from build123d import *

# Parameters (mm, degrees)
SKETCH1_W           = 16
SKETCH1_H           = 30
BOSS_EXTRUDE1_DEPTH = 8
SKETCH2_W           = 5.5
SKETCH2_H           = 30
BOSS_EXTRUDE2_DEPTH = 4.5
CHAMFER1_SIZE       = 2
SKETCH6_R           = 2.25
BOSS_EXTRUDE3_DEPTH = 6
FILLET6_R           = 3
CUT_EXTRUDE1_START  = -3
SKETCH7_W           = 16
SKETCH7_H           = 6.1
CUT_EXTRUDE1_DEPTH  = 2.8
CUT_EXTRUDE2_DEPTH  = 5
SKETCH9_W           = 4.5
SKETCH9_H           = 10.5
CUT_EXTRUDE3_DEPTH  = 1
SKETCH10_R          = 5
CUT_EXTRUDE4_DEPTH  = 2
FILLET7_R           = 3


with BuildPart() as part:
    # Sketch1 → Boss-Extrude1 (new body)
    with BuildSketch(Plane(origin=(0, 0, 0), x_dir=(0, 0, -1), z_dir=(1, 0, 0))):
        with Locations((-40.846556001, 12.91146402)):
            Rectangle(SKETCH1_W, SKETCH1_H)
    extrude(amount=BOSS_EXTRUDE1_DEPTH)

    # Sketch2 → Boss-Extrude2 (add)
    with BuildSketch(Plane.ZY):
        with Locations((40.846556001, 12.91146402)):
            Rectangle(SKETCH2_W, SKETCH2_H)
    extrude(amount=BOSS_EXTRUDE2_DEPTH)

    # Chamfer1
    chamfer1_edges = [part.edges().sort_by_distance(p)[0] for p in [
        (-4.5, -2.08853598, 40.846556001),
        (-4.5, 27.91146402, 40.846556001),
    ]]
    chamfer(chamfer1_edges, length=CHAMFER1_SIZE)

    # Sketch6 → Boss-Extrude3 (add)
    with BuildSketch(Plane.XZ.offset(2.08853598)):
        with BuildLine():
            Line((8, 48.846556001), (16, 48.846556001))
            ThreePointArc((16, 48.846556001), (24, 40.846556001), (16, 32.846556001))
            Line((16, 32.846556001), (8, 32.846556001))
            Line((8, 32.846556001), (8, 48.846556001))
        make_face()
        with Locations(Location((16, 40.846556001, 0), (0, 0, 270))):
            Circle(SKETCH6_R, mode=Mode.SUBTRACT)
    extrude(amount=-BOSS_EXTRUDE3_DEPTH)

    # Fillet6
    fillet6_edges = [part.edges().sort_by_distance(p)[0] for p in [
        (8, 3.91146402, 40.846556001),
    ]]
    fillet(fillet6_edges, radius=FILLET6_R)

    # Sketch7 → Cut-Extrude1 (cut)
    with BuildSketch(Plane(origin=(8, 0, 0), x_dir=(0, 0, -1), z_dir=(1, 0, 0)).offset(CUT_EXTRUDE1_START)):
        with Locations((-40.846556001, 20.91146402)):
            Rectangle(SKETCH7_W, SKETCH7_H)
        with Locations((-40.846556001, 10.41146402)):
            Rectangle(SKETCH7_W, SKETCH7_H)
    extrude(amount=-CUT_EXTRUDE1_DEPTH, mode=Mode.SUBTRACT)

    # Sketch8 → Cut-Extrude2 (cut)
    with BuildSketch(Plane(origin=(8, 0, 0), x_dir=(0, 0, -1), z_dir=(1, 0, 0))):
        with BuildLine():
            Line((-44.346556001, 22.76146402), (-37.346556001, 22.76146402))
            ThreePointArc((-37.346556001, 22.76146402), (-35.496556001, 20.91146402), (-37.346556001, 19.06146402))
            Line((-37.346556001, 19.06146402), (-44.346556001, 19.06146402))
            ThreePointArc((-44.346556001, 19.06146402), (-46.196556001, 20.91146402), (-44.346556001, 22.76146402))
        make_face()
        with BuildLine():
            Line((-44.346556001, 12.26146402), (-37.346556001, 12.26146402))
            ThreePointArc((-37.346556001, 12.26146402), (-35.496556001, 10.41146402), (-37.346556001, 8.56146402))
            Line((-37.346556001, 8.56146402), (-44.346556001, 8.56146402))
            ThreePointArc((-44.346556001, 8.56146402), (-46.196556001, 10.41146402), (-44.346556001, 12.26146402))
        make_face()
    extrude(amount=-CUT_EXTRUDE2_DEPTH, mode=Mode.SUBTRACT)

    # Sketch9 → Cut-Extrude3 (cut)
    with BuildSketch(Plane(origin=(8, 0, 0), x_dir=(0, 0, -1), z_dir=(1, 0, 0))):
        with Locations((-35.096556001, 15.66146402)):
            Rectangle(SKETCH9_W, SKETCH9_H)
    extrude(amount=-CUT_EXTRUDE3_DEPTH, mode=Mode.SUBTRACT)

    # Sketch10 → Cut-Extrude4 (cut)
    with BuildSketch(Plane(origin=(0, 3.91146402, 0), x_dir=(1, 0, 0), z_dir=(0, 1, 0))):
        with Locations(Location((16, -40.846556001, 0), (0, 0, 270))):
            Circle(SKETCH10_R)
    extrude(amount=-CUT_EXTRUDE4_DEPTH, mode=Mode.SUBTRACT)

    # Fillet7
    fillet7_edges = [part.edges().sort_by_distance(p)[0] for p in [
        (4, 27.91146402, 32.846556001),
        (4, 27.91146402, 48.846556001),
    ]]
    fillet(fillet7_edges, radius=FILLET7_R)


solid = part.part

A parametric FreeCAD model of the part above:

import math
import FreeCAD as App
import Part
import Sketcher


def edges_at(feature, points):
    """Names of the edges that pass closest to the given points."""
    edges = feature.Shape.Edges
    near = lambda p: min(range(len(edges)), key=lambda i: edges[i].distToShape(Part.Vertex(*p))[0])
    return sorted({f"Edge{near(p) + 1}" for p in points})

doc = App.newDocument("Part")
params = doc.addObject("Spreadsheet::Sheet", "Params")
for row, (alias, value) in enumerate([
    ("sketch1_width", "30 mm"),
    ("sketch1_height", "16 mm"),
    ("pad1_length", "8 mm"),
    ("sketch2_width", "30 mm"),
    ("sketch2_height", "5.5 mm"),
    ("pad2_length", "4.5 mm"),
    ("chamfer_size", "2 mm"),
    ("sketch3_radius", "8 mm"),
    ("sketch3_diameter", "4.5 mm"),
    ("sketch3_width", "8 mm"),
    ("pad3_length", "6 mm"),
    ("fillet_radius", "3 mm"),
    ("sketch4_height", "16 mm"),
    ("sketch4_width", "6.1 mm"),
    ("pocket1_length", "2.8 mm"),
    ("sketch5_height", "7 mm"),
    ("sketch5_radius", "1.85 mm"),
    ("pocket2_length", "5 mm"),
    ("sketch6_width", "10.5 mm"),
    ("sketch6_height", "4.5 mm"),
    ("pocket3_length", "1 mm"),
    ("sketch7_diameter", "10 mm"),
    ("pocket4_length", "2 mm"),
    ("fillet2_radius", "3 mm"),
], start=1):
    params.set(f"A{row}", alias)
    params.set(f"B{row}", "=" + value)
    params.setAlias(f"B{row}", alias)

body = doc.addObject("PartDesign::Body", "Body")

# Sketch on YZ plane
sketch1 = body.newObject("Sketcher::SketchObject", "Sketch")
sketch1.AttachmentSupport = (doc.getObject("YZ_Plane"), [""])
sketch1.MapMode = "FlatFace"
sketch1.addGeometry(Part.LineSegment(App.Vector(28, 49, 0), App.Vector(-2, 49, 0)), False)
sketch1.addGeometry(Part.LineSegment(App.Vector(-2, 49, 0), App.Vector(-2, 33, 0)), False)
sketch1.addGeometry(Part.LineSegment(App.Vector(-2, 33, 0), App.Vector(28, 33, 0)), False)
sketch1.addGeometry(Part.LineSegment(App.Vector(28, 33, 0), App.Vector(28, 49, 0)), False)
sketch1.addConstraint(Sketcher.Constraint("Coincident", 0, 2, 1, 1))
sketch1.addConstraint(Sketcher.Constraint("Coincident", 1, 2, 2, 1))
sketch1.addConstraint(Sketcher.Constraint("Coincident", 2, 2, 3, 1))
sketch1.addConstraint(Sketcher.Constraint("Coincident", 3, 2, 0, 1))
sketch1.addConstraint(Sketcher.Constraint("Horizontal", 0))
sketch1.addConstraint(Sketcher.Constraint("Vertical", 1))
sketch1.addConstraint(Sketcher.Constraint("Horizontal", 2))
sketch1.addConstraint(Sketcher.Constraint("Vertical", 3))
sketch1.addConstraint(Sketcher.Constraint("DistanceX", 0, 2, 0, 1, 30.0))
sketch1.addConstraint(Sketcher.Constraint("DistanceY", 1, 2, 1, 1, 16.0))
sketch1.addConstraint(Sketcher.Constraint("DistanceX", 0, 2, -1, 1, 2.088536))
sketch1.addConstraint(Sketcher.Constraint("DistanceY", -1, 1, 0, 2, 48.846556))
sketch1.setExpression("Constraints[8]", "Params.sketch1_width")
sketch1.setExpression("Constraints[9]", "Params.sketch1_height")
pad1 = body.newObject("PartDesign::Pad", "Pad")
pad1.Profile = sketch1
pad1.setExpression("Length", "Params.pad1_length")

# Sketch on YZ plane
sketch2 = body.newObject("Sketcher::SketchObject", "Sketch001")
sketch2.AttachmentSupport = (doc.getObject("YZ_Plane"), [""])
sketch2.MapMode = "FlatFace"
sketch2.addGeometry(Part.LineSegment(App.Vector(28, 38, 0), App.Vector(-2, 38, 0)), False)
sketch2.addGeometry(Part.LineSegment(App.Vector(-2, 38, 0), App.Vector(-2, 44, 0)), False)
sketch2.addGeometry(Part.LineSegment(App.Vector(-2, 44, 0), App.Vector(28, 44, 0)), False)
sketch2.addGeometry(Part.LineSegment(App.Vector(28, 44, 0), App.Vector(28, 38, 0)), False)
sketch2.addConstraint(Sketcher.Constraint("Coincident", 0, 2, 1, 1))
sketch2.addConstraint(Sketcher.Constraint("Coincident", 1, 2, 2, 1))
sketch2.addConstraint(Sketcher.Constraint("Coincident", 2, 2, 3, 1))
sketch2.addConstraint(Sketcher.Constraint("Coincident", 3, 2, 0, 1))
sketch2.addConstraint(Sketcher.Constraint("Horizontal", 0))
sketch2.addConstraint(Sketcher.Constraint("Vertical", 1))
sketch2.addConstraint(Sketcher.Constraint("Horizontal", 2))
sketch2.addConstraint(Sketcher.Constraint("Vertical", 3))
sketch2.addConstraint(Sketcher.Constraint("DistanceX", 0, 2, 0, 1, 30.0))
sketch2.addConstraint(Sketcher.Constraint("DistanceY", 1, 1, 1, 2, 5.5))
sketch2.addConstraint(Sketcher.Constraint("DistanceX", 0, 2, -1, 1, 2.088536))
sketch2.addConstraint(Sketcher.Constraint("DistanceY", -1, 1, 0, 2, 38.096556))
sketch2.setExpression("Constraints[8]", "Params.sketch2_width")
sketch2.setExpression("Constraints[9]", "Params.sketch2_height")
pad2 = body.newObject("PartDesign::Pad", "Pad001")
pad2.Profile = sketch2
pad2.setExpression("Length", "Params.pad2_length")
pad2.Reversed = True
doc.recompute()

chamfer = body.newObject("PartDesign::Chamfer", "Chamfer")
chamfer.Base = (pad2, edges_at(pad2, [(-4.5, -2.089, 40.847), (-4.5, 27.911, 40.847)]))
chamfer.setExpression("Size", "Params.chamfer_size")

# Sketch on XZ plane
sketch3 = body.newObject("Sketcher::SketchObject", "Sketch002")
sketch3.AttachmentSupport = (doc.getObject("XZ_Plane"), [""])
sketch3.MapMode = "FlatFace"
sketch3.AttachmentOffset = App.Placement(App.Vector(0, 0, 2.088536), App.Rotation())
sketch3.addGeometry(Part.LineSegment(App.Vector(16, 48.8, 0), App.Vector(8, 48.8, 0)), False)
sketch3.addGeometry(Part.LineSegment(App.Vector(8, 48.8, 0), App.Vector(8, 32.8, 0)), False)
sketch3.addGeometry(Part.LineSegment(App.Vector(8, 32.8, 0), App.Vector(16, 32.8, 0)), False)
sketch3.addGeometry(Part.ArcOfCircle(Part.Circle(App.Vector(16, 40.8, 0), App.Vector(0, 0, 1), 8), math.radians(-90), math.radians(90)), False)
sketch3.addGeometry(Part.Circle(App.Vector(16, 40.8, 0), App.Vector(0, 0, 1), 2.2), False)
sketch3.addConstraint(Sketcher.Constraint("Coincident", 0, 2, 1, 1))
sketch3.addConstraint(Sketcher.Constraint("Coincident", 1, 2, 2, 1))
sketch3.addConstraint(Sketcher.Constraint("Tangent", 2, 2, 3, 1))
sketch3.addConstraint(Sketcher.Constraint("Tangent", 3, 2, 0, 1))
sketch3.addConstraint(Sketcher.Constraint("Horizontal", 0))
sketch3.addConstraint(Sketcher.Constraint("Vertical", 1))
sketch3.addConstraint(Sketcher.Constraint("Horizontal", 2))
sketch3.addConstraint(Sketcher.Constraint("Coincident", 4, 3, 3, 3))
sketch3.addConstraint(Sketcher.Constraint("Radius", 3, 8.0))
sketch3.addConstraint(Sketcher.Constraint("Diameter", 4, 4.5))
sketch3.addConstraint(Sketcher.Constraint("DistanceX", 0, 2, 0, 1, 8.0))
sketch3.addConstraint(Sketcher.Constraint("DistanceX", -1, 1, 3, 3, 16.0))
sketch3.addConstraint(Sketcher.Constraint("DistanceY", -1, 1, 3, 3, 40.846556))
sketch3.setExpression("Constraints[8]", "Params.sketch3_radius")
sketch3.setExpression("Constraints[9]", "Params.sketch3_diameter")
sketch3.setExpression("Constraints[10]", "Params.sketch3_width")
pad3 = body.newObject("PartDesign::Pad", "Pad002")
pad3.Profile = sketch3
pad3.setExpression("Length", "Params.pad3_length")
pad3.Reversed = True
doc.recompute()

fillet = body.newObject("PartDesign::Fillet", "Fillet")
fillet.Base = (pad3, edges_at(pad3, [(8, 3.911, 40.847)]))
fillet.setExpression("Radius", "Params.fillet_radius")

# Sketch on YZ plane
sketch4 = body.newObject("Sketcher::SketchObject", "Sketch003")
sketch4.AttachmentSupport = (doc.getObject("YZ_Plane"), [""])
sketch4.MapMode = "FlatFace"
sketch4.AttachmentOffset = App.Placement(App.Vector(0, 0, 5), App.Rotation())
sketch4.addGeometry(Part.LineSegment(App.Vector(24, 49, 0), App.Vector(18, 49, 0)), False)
sketch4.addGeometry(Part.LineSegment(App.Vector(18, 49, 0), App.Vector(18, 33, 0)), False)
sketch4.addGeometry(Part.LineSegment(App.Vector(18, 33, 0), App.Vector(24, 33, 0)), False)
sketch4.addGeometry(Part.LineSegment(App.Vector(24, 33, 0), App.Vector(24, 49, 0)), False)
sketch4.addGeometry(Part.LineSegment(App.Vector(13, 49, 0), App.Vector(7, 49, 0)), False)
sketch4.addGeometry(Part.LineSegment(App.Vector(7, 49, 0), App.Vector(7, 33, 0)), False)
sketch4.addGeometry(Part.LineSegment(App.Vector(7, 33, 0), App.Vector(13, 33, 0)), False)
sketch4.addGeometry(Part.LineSegment(App.Vector(13, 33, 0), App.Vector(13, 49, 0)), False)
sketch4.addConstraint(Sketcher.Constraint("Coincident", 0, 2, 1, 1))
sketch4.addConstraint(Sketcher.Constraint("Coincident", 1, 2, 2, 1))
sketch4.addConstraint(Sketcher.Constraint("Coincident", 2, 2, 3, 1))
sketch4.addConstraint(Sketcher.Constraint("Coincident", 3, 2, 0, 1))
sketch4.addConstraint(Sketcher.Constraint("Coincident", 4, 2, 5, 1))
sketch4.addConstraint(Sketcher.Constraint("Coincident", 5, 2, 6, 1))
sketch4.addConstraint(Sketcher.Constraint("Coincident", 6, 2, 7, 1))
sketch4.addConstraint(Sketcher.Constraint("Coincident", 7, 2, 4, 1))
sketch4.addConstraint(Sketcher.Constraint("Horizontal", 0))
sketch4.addConstraint(Sketcher.Constraint("Vertical", 1))
sketch4.addConstraint(Sketcher.Constraint("Horizontal", 2))
sketch4.addConstraint(Sketcher.Constraint("Vertical", 3))
sketch4.addConstraint(Sketcher.Constraint("Horizontal", 4))
sketch4.addConstraint(Sketcher.Constraint("Vertical", 5))
sketch4.addConstraint(Sketcher.Constraint("Horizontal", 6))
sketch4.addConstraint(Sketcher.Constraint("Vertical", 7))
sketch4.addConstraint(Sketcher.Constraint("Horizontal", 3, 2, 4, 2))
sketch4.addConstraint(Sketcher.Constraint("Horizontal", 2, 2, 5, 2))
sketch4.addConstraint(Sketcher.Constraint("Equal", 2, 4))
sketch4.addConstraint(Sketcher.Constraint("DistanceY", 1, 2, 1, 1, 16.0))
sketch4.addConstraint(Sketcher.Constraint("DistanceX", 0, 2, 0, 1, 6.1))
sketch4.addConstraint(Sketcher.Constraint("DistanceX", 4, 2, 0, 2, 10.5))
sketch4.addConstraint(Sketcher.Constraint("DistanceX", -1, 1, 0, 2, 17.861464))
sketch4.addConstraint(Sketcher.Constraint("DistanceY", -1, 1, 0, 2, 48.846556))
sketch4.setExpression("Constraints[19]", "Params.sketch4_height")
sketch4.setExpression("Constraints[20]", "Params.sketch4_width")
pocket1 = body.newObject("PartDesign::Pocket", "Pocket")
pocket1.Profile = sketch4
pocket1.setExpression("Length", "Params.pocket1_length")

# Sketch on YZ plane
sketch5 = body.newObject("Sketcher::SketchObject", "Sketch004")
sketch5.AttachmentSupport = (doc.getObject("YZ_Plane"), [""])
sketch5.MapMode = "FlatFace"
sketch5.AttachmentOffset = App.Placement(App.Vector(0, 0, 8), App.Rotation())
sketch5.addGeometry(Part.LineSegment(App.Vector(22.8, 37.3, 0), App.Vector(22.8, 44.3, 0)), False)
sketch5.addGeometry(Part.ArcOfCircle(Part.Circle(App.Vector(20.9, 44.3, 0), App.Vector(0, 0, 1), 1.9), math.radians(0), math.radians(180)), False)
sketch5.addGeometry(Part.LineSegment(App.Vector(19.1, 44.3, 0), App.Vector(19.1, 37.3, 0)), False)
sketch5.addGeometry(Part.ArcOfCircle(Part.Circle(App.Vector(20.9, 37.3, 0), App.Vector(0, 0, 1), 1.9), math.radians(180), math.radians(360)), False)
sketch5.addGeometry(Part.LineSegment(App.Vector(12.3, 37.3, 0), App.Vector(12.3, 44.3, 0)), False)
sketch5.addGeometry(Part.ArcOfCircle(Part.Circle(App.Vector(10.4, 44.3, 0), App.Vector(0, 0, 1), 1.9), math.radians(0), math.radians(180)), False)
sketch5.addGeometry(Part.LineSegment(App.Vector(8.6, 44.3, 0), App.Vector(8.6, 37.3, 0)), False)
sketch5.addGeometry(Part.ArcOfCircle(Part.Circle(App.Vector(10.4, 37.3, 0), App.Vector(0, 0, 1), 1.9), math.radians(180), math.radians(360)), False)
sketch5.addConstraint(Sketcher.Constraint("Tangent", 0, 2, 1, 1))
sketch5.addConstraint(Sketcher.Constraint("Tangent", 1, 2, 2, 1))
sketch5.addConstraint(Sketcher.Constraint("Tangent", 2, 2, 3, 1))
sketch5.addConstraint(Sketcher.Constraint("Tangent", 3, 2, 0, 1))
sketch5.addConstraint(Sketcher.Constraint("Tangent", 4, 2, 5, 1))
sketch5.addConstraint(Sketcher.Constraint("Tangent", 5, 2, 6, 1))
sketch5.addConstraint(Sketcher.Constraint("Tangent", 6, 2, 7, 1))
sketch5.addConstraint(Sketcher.Constraint("Tangent", 7, 2, 4, 1))
sketch5.addConstraint(Sketcher.Constraint("Vertical", 0))
sketch5.addConstraint(Sketcher.Constraint("Vertical", 2))
sketch5.addConstraint(Sketcher.Constraint("Vertical", 4))
sketch5.addConstraint(Sketcher.Constraint("Vertical", 6))
sketch5.addConstraint(Sketcher.Constraint("Equal", 3, 5))
sketch5.addConstraint(Sketcher.Constraint("Horizontal", 1, 3, 5, 3))
sketch5.addConstraint(Sketcher.Constraint("Horizontal", 3, 3, 7, 3))
sketch5.addConstraint(Sketcher.Constraint("DistanceY", 0, 1, 0, 2, 7.0))
sketch5.addConstraint(Sketcher.Constraint("Radius", 1, 1.85))
sketch5.addConstraint(Sketcher.Constraint("DistanceX", 5, 3, 1, 3, 10.5))
sketch5.addConstraint(Sketcher.Constraint("DistanceX", -1, 1, 1, 3, 20.911464))
sketch5.addConstraint(Sketcher.Constraint("DistanceY", -1, 1, 1, 3, 44.346556))
sketch5.setExpression("Constraints[15]", "Params.sketch5_height")
sketch5.setExpression("Constraints[16]", "Params.sketch5_radius")
pocket2 = body.newObject("PartDesign::Pocket", "Pocket001")
pocket2.Profile = sketch5
pocket2.setExpression("Length", "Params.pocket2_length")

# Sketch on YZ plane
sketch6 = body.newObject("Sketcher::SketchObject", "Sketch005")
sketch6.AttachmentSupport = (doc.getObject("YZ_Plane"), [""])
sketch6.MapMode = "FlatFace"
sketch6.AttachmentOffset = App.Placement(App.Vector(0, 0, 8), App.Rotation())
sketch6.addGeometry(Part.LineSegment(App.Vector(20.9, 37.3, 0), App.Vector(10.4, 37.3, 0)), False)
sketch6.addGeometry(Part.LineSegment(App.Vector(10.4, 37.3, 0), App.Vector(10.4, 32.8, 0)), False)
sketch6.addGeometry(Part.LineSegment(App.Vector(10.4, 32.8, 0), App.Vector(20.9, 32.8, 0)), False)
sketch6.addGeometry(Part.LineSegment(App.Vector(20.9, 32.8, 0), App.Vector(20.9, 37.3, 0)), False)
sketch6.addConstraint(Sketcher.Constraint("Coincident", 0, 2, 1, 1))
sketch6.addConstraint(Sketcher.Constraint("Coincident", 1, 2, 2, 1))
sketch6.addConstraint(Sketcher.Constraint("Coincident", 2, 2, 3, 1))
sketch6.addConstraint(Sketcher.Constraint("Coincident", 3, 2, 0, 1))
sketch6.addConstraint(Sketcher.Constraint("Horizontal", 0))
sketch6.addConstraint(Sketcher.Constraint("Vertical", 1))
sketch6.addConstraint(Sketcher.Constraint("Horizontal", 2))
sketch6.addConstraint(Sketcher.Constraint("Vertical", 3))
sketch6.addConstraint(Sketcher.Constraint("DistanceX", 0, 2, 0, 1, 10.5))
sketch6.addConstraint(Sketcher.Constraint("DistanceY", 1, 2, 1, 1, 4.5))
sketch6.addConstraint(Sketcher.Constraint("DistanceX", -1, 1, 0, 2, 10.411464))
sketch6.addConstraint(Sketcher.Constraint("DistanceY", -1, 1, 0, 2, 37.346556))
sketch6.setExpression("Constraints[8]", "Params.sketch6_width")
sketch6.setExpression("Constraints[9]", "Params.sketch6_height")
pocket3 = body.newObject("PartDesign::Pocket", "Pocket002")
pocket3.Profile = sketch6
pocket3.setExpression("Length", "Params.pocket3_length")

# Sketch on XZ plane
sketch7 = body.newObject("Sketcher::SketchObject", "Sketch006")
sketch7.AttachmentSupport = (doc.getObject("XZ_Plane"), [""])
sketch7.MapMode = "FlatFace"
sketch7.AttachmentOffset = App.Placement(App.Vector(0, 0, -3.911464), App.Rotation())
sketch7.addGeometry(Part.Circle(App.Vector(16, 41, 0), App.Vector(0, 0, 1), 5), False)
sketch7.addConstraint(Sketcher.Constraint("Diameter", 0, 10.0))
sketch7.addConstraint(Sketcher.Constraint("DistanceX", -1, 1, 0, 3, 16.0))
sketch7.addConstraint(Sketcher.Constraint("DistanceY", -1, 1, 0, 3, 40.846556))
sketch7.setExpression("Constraints[0]", "Params.sketch7_diameter")
pocket4 = body.newObject("PartDesign::Pocket", "Pocket003")
pocket4.Profile = sketch7
pocket4.setExpression("Length", "Params.pocket4_length")
pocket4.Reversed = True
doc.recompute()

fillet2 = body.newObject("PartDesign::Fillet", "Fillet001")
fillet2.Base = (pocket4, edges_at(pocket4, [(4, 27.911, 32.847), (4, 27.911, 48.847)]))
fillet2.setExpression("Radius", "Params.fillet2_radius")

doc.recompute()
